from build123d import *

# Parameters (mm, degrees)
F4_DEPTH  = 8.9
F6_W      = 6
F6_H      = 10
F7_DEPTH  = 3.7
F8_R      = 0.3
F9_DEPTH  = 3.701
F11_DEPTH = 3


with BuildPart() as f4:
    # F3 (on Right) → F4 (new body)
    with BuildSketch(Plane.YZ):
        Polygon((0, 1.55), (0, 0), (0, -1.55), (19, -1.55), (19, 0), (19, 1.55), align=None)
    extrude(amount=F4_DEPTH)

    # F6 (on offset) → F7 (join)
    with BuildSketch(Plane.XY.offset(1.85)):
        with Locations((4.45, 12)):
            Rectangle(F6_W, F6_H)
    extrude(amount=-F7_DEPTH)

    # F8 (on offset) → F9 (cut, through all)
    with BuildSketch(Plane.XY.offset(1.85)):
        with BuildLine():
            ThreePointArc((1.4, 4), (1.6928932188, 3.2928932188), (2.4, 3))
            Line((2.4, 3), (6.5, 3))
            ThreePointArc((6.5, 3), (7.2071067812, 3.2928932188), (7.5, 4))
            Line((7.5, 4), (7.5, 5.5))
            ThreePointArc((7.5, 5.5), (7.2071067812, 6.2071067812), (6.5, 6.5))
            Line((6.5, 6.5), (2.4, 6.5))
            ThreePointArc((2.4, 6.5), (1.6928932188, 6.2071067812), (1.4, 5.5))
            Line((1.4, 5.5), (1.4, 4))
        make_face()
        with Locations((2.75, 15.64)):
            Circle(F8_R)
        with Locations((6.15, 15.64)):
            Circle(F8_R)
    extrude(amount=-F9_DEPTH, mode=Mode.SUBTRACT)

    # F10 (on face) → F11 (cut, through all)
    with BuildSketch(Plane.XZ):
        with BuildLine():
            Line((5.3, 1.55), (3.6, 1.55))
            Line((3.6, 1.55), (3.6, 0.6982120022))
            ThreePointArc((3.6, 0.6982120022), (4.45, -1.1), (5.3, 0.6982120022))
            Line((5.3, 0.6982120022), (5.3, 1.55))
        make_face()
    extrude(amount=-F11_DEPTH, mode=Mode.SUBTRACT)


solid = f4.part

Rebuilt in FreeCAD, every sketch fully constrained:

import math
import FreeCAD as App
import Part
import Sketcher
from FreeCAD import Vector
Q = App.Units.Quantity


def add_polygon(sketch, points):
    """Adds a closed chain of lines whose ends are joined by coincident constraints."""
    first, n = sketch.GeometryCount, len(points)
    for a, b in zip(points, points[1:] + points[:1]):
        sketch.addGeometry(Part.LineSegment(App.Vector(*a, 0), App.Vector(*b, 0)), False)
    for i in range(n):
        sketch.addConstraint(Sketcher.Constraint("Coincident", first + i, 2, first + (i + 1) % n, 1))

doc = App.newDocument("Part")
body = doc.addObject("PartDesign::Body", "Body")

sketch1 = doc.addObject("Sketcher::SketchObject", "Sketch")
body.addObject(sketch1)
sketch1.AttachmentSupport = (doc.YZ_Plane, [""])
sketch1.MapMode = "FlatFace"
add_polygon(sketch1, [(0, 1.6), (0, -1.6), (19, -1.6), (19, 1.6)])
sketch1.addConstraint(Sketcher.Constraint("Vertical", 0))
sketch1.addConstraint(Sketcher.Constraint("Horizontal", 1))
sketch1.addConstraint(Sketcher.Constraint("Vertical", 2))
sketch1.addConstraint(Sketcher.Constraint("Horizontal", 3))
sketch1.addConstraint(Sketcher.Constraint("Symmetric", 0, 2, 3, 2, -1, 1))
sketch1.addConstraint(Sketcher.Constraint("DistanceX", 1, 1, 1, 2, Q("19 mm")))
sketch1.addConstraint(Sketcher.Constraint("DistanceY", 0, 2, 0, 1, Q("3.1 mm")))
pad1 = doc.addObject("PartDesign::Pad", "Pad")
body.addObject(pad1)
pad1.Profile = sketch1
pad1.Length = 8.9

sketch2 = doc.addObject("Sketcher::SketchObject", "Sketch001")
body.addObject(sketch2)
sketch2.AttachmentSupport = (doc.XY_Plane, [""])
sketch2.MapMode = "FlatFace"
sketch2.AttachmentOffset = App.Placement(Vector(0, 0, 1.85), App.Rotation())
add_polygon(sketch2, [(1, 17), (1, 7), (7, 7), (7, 17)])
sketch2.addConstraint(Sketcher.Constraint("Vertical", 0))
sketch2.addConstraint(Sketcher.Constraint("Horizontal", 1))
sketch2.addConstraint(Sketcher.Constraint("Vertical", 2))
sketch2.addConstraint(Sketcher.Constraint("Horizontal", 3))
sketch2.addConstraint(Sketcher.Constraint("DistanceX", 1, 1, 1, 2, Q("6 mm")))
sketch2.addConstraint(Sketcher.Constraint("DistanceY", 0, 2, 0, 1, Q("10 mm")))
sketch2.addConstraint(Sketcher.Constraint("DistanceY", -1, 1, 0, 2, Q("7 mm")))
sketch2.addConstraint(Sketcher.Constraint("DistanceX", -1, 1, 0, 2, Q("1.45 mm")))
pad2 = doc.addObject("PartDesign::Pad", "Pad001")
body.addObject(pad2)
pad2.Profile = sketch2
pad2.Length = 3.7
pad2.Reversed = True

sketch3 = doc.addObject("Sketcher::SketchObject", "Sketch002")
body.addObject(sketch3)
sketch3.AttachmentSupport = (doc.XY_Plane, [""])
sketch3.MapMode = "FlatFace"
sketch3.AttachmentOffset = App.Placement(Vector(0, 0, 1.85), App.Rotation())
sketch3.addGeometry(Part.ArcOfCircle(Part.Circle(Vector(2.4, 4, 0), Vector(0, 0, 1), 1), math.radians(180), math.radians(270)), False)
sketch3.addGeometry(Part.LineSegment(Vector(2.4, 3, 0), Vector(6.5, 3, 0)), False)
sketch3.addGeometry(Part.ArcOfCircle(Part.Circle(Vector(6.5, 4, 0), Vector(0, 0, 1), 1), math.radians(-90), math.radians(0)), False)
sketch3.addGeometry(Part.LineSegment(Vector(7.5, 4, 0), Vector(7.5, 5.5, 0)), False)
sketch3.addGeometry(Part.ArcOfCircle(Part.Circle(Vector(6.5, 5.5, 0), Vector(0, 0, 1), 1), math.radians(0), math.radians(90)), False)
sketch3.addGeometry(Part.LineSegment(Vector(6.5, 6.5, 0), Vector(2.4, 6.5, 0)), False)
sketch3.addGeometry(Part.ArcOfCircle(Part.Circle(Vector(2.4, 5.5, 0), Vector(0, 0, 1), 1), math.radians(90), math.radians(180)), False)
sketch3.addGeometry(Part.LineSegment(Vector(1.4, 5.5, 0), Vector(1.4, 4, 0)), False)
sketch3.addGeometry(Part.Circle(Vector(2.75, 15.64, 0), Vector(0, 0, 1), 0.3), False)
sketch3.addGeometry(Part.Circle(Vector(6.15, 15.64, 0), Vector(0, 0, 1), 0.3), False)
sketch3.addConstraint(Sketcher.Constraint("Tangent", 0, 2, 1, 1))
sketch3.addConstraint(Sketcher.Constraint("Tangent", 1, 2, 2, 1))
sketch3.addConstraint(Sketcher.Constraint("Tangent", 2, 2, 3, 1))
sketch3.addConstraint(Sketcher.Constraint("Tangent", 3, 2, 4, 1))
sketch3.addConstraint(Sketcher.Constraint("Tangent", 4, 2, 5, 1))
sketch3.addConstraint(Sketcher.Constraint("Tangent", 5, 2, 6, 1))
sketch3.addConstraint(Sketcher.Constraint("Tangent", 6, 2, 7, 1))
sketch3.addConstraint(Sketcher.Constraint("Tangent", 7, 2, 0, 1))
sketch3.addConstraint(Sketcher.Constraint("Horizontal", 1))
sketch3.addConstraint(Sketcher.Constraint("Vertical", 3))
sketch3.addConstraint(Sketcher.Constraint("Horizontal", 5))
sketch3.addConstraint(Sketcher.Constraint("Vertical", 7))
sketch3.addConstraint(Sketcher.Constraint("Equal", 0, 2))
sketch3.addConstraint(Sketcher.Constraint("Equal", 2, 4))
sketch3.addConstraint(Sketcher.Constraint("Equal", 4, 6))
sketch3.addConstraint(Sketcher.Constraint("Equal", 8, 9))
sketch3.addConstraint(Sketcher.Constraint("Horizontal", 8, 3, 9, 3))
sketch3.addConstraint(Sketcher.Constraint("Radius", 0, Q("1 mm")))
sketch3.addConstraint(Sketcher.Constraint("Diameter", 8, Q("0.6 mm")))
sketch3.addConstraint(Sketcher.Constraint("DistanceX", 1, 1, 1, 2, Q("4.1 mm")))
sketch3.addConstraint(Sketcher.Constraint("DistanceY", 3, 1, 3, 2, Q("1.5 mm")))
sketch3.addConstraint(Sketcher.Constraint("DistanceY", -1, 1, 0, 3, Q("4 mm")))
sketch3.addConstraint(Sketcher.Constraint("DistanceX", -1, 1, 0, 3, Q("2.4 mm")))
sketch3.addConstraint(Sketcher.Constraint("DistanceX", 8, 3, 9, 3, Q("3.4 mm")))
sketch3.addConstraint(Sketcher.Constraint("DistanceX", -1, 1, 8, 3, Q("2.75 mm")))
sketch3.addConstraint(Sketcher.Constraint("DistanceY", -1, 1, 8, 3, Q("15.64 mm")))
pocket1 = doc.addObject("PartDesign::Pocket", "Pocket")
body.addObject(pocket1)
pocket1.Profile = sketch3
pocket1.Type = "ThroughAll"

sketch4 = doc.addObject("Sketcher::SketchObject", "Sketch003")
body.addObject(sketch4)
sketch4.AttachmentSupport = (doc.XZ_Plane, [""])
sketch4.MapMode = "FlatFace"
sketch4.addGeometry(Part.LineSegment(Vector(5.3, 1.6, 0), Vector(3.6, 1.6, 0)), False)
sketch4.addGeometry(Part.LineSegment(Vector(3.6, 1.6, 0), Vector(3.6, 0.7, 0)), False)
sketch4.addGeometry(Part.ArcOfCircle(Part.Circle(Vector(4.5, 0, 0), Vector(0, 0, 1), 1.1), math.radians(141), math.radians(399)), False)
sketch4.addGeometry(Part.LineSegment(Vector(5.3, 0.7, 0), Vector(5.3, 1.6, 0)), False)
sketch4.addConstraint(Sketcher.Constraint("Coincident", 0, 2, 1, 1))
sketch4.addConstraint(Sketcher.Constraint("Coincident", 1, 2, 2, 1))
sketch4.addConstraint(Sketcher.Constraint("Coincident", 2, 2, 3, 1))
sketch4.addConstraint(Sketcher.Constraint("Coincident", 3, 2, 0, 1))
sketch4.addConstraint(Sketcher.Constraint("Horizontal", 0))
sketch4.addConstraint(Sketcher.Constraint("Vertical", 1))
sketch4.addConstraint(Sketcher.Constraint("Vertical", 3))
sketch4.addConstraint(Sketcher.Constraint("PointOnObject", 2, 3, -1))
sketch4.addConstraint(Sketcher.Constraint("Horizontal", 1, 2, 2, 2))
sketch4.addConstraint(Sketcher.Constraint("Radius", 2, Q("1.1 mm")))
sketch4.addConstraint(Sketcher.Constraint("DistanceX", 0, 2, 0, 1, Q("1.7 mm")))
sketch4.addConstraint(Sketcher.Constraint("DistanceX", -1, 1, 0, 2, Q("3.6 mm")))
sketch4.addConstraint(Sketcher.Constraint("DistanceY", -1, 1, 0, 2, Q("1.55 mm")))
pocket2 = doc.addObject("PartDesign::Pocket", "Pocket001")
body.addObject(pocket2)
pocket2.Profile = sketch4
pocket2.Length = 3

doc.recompute()
